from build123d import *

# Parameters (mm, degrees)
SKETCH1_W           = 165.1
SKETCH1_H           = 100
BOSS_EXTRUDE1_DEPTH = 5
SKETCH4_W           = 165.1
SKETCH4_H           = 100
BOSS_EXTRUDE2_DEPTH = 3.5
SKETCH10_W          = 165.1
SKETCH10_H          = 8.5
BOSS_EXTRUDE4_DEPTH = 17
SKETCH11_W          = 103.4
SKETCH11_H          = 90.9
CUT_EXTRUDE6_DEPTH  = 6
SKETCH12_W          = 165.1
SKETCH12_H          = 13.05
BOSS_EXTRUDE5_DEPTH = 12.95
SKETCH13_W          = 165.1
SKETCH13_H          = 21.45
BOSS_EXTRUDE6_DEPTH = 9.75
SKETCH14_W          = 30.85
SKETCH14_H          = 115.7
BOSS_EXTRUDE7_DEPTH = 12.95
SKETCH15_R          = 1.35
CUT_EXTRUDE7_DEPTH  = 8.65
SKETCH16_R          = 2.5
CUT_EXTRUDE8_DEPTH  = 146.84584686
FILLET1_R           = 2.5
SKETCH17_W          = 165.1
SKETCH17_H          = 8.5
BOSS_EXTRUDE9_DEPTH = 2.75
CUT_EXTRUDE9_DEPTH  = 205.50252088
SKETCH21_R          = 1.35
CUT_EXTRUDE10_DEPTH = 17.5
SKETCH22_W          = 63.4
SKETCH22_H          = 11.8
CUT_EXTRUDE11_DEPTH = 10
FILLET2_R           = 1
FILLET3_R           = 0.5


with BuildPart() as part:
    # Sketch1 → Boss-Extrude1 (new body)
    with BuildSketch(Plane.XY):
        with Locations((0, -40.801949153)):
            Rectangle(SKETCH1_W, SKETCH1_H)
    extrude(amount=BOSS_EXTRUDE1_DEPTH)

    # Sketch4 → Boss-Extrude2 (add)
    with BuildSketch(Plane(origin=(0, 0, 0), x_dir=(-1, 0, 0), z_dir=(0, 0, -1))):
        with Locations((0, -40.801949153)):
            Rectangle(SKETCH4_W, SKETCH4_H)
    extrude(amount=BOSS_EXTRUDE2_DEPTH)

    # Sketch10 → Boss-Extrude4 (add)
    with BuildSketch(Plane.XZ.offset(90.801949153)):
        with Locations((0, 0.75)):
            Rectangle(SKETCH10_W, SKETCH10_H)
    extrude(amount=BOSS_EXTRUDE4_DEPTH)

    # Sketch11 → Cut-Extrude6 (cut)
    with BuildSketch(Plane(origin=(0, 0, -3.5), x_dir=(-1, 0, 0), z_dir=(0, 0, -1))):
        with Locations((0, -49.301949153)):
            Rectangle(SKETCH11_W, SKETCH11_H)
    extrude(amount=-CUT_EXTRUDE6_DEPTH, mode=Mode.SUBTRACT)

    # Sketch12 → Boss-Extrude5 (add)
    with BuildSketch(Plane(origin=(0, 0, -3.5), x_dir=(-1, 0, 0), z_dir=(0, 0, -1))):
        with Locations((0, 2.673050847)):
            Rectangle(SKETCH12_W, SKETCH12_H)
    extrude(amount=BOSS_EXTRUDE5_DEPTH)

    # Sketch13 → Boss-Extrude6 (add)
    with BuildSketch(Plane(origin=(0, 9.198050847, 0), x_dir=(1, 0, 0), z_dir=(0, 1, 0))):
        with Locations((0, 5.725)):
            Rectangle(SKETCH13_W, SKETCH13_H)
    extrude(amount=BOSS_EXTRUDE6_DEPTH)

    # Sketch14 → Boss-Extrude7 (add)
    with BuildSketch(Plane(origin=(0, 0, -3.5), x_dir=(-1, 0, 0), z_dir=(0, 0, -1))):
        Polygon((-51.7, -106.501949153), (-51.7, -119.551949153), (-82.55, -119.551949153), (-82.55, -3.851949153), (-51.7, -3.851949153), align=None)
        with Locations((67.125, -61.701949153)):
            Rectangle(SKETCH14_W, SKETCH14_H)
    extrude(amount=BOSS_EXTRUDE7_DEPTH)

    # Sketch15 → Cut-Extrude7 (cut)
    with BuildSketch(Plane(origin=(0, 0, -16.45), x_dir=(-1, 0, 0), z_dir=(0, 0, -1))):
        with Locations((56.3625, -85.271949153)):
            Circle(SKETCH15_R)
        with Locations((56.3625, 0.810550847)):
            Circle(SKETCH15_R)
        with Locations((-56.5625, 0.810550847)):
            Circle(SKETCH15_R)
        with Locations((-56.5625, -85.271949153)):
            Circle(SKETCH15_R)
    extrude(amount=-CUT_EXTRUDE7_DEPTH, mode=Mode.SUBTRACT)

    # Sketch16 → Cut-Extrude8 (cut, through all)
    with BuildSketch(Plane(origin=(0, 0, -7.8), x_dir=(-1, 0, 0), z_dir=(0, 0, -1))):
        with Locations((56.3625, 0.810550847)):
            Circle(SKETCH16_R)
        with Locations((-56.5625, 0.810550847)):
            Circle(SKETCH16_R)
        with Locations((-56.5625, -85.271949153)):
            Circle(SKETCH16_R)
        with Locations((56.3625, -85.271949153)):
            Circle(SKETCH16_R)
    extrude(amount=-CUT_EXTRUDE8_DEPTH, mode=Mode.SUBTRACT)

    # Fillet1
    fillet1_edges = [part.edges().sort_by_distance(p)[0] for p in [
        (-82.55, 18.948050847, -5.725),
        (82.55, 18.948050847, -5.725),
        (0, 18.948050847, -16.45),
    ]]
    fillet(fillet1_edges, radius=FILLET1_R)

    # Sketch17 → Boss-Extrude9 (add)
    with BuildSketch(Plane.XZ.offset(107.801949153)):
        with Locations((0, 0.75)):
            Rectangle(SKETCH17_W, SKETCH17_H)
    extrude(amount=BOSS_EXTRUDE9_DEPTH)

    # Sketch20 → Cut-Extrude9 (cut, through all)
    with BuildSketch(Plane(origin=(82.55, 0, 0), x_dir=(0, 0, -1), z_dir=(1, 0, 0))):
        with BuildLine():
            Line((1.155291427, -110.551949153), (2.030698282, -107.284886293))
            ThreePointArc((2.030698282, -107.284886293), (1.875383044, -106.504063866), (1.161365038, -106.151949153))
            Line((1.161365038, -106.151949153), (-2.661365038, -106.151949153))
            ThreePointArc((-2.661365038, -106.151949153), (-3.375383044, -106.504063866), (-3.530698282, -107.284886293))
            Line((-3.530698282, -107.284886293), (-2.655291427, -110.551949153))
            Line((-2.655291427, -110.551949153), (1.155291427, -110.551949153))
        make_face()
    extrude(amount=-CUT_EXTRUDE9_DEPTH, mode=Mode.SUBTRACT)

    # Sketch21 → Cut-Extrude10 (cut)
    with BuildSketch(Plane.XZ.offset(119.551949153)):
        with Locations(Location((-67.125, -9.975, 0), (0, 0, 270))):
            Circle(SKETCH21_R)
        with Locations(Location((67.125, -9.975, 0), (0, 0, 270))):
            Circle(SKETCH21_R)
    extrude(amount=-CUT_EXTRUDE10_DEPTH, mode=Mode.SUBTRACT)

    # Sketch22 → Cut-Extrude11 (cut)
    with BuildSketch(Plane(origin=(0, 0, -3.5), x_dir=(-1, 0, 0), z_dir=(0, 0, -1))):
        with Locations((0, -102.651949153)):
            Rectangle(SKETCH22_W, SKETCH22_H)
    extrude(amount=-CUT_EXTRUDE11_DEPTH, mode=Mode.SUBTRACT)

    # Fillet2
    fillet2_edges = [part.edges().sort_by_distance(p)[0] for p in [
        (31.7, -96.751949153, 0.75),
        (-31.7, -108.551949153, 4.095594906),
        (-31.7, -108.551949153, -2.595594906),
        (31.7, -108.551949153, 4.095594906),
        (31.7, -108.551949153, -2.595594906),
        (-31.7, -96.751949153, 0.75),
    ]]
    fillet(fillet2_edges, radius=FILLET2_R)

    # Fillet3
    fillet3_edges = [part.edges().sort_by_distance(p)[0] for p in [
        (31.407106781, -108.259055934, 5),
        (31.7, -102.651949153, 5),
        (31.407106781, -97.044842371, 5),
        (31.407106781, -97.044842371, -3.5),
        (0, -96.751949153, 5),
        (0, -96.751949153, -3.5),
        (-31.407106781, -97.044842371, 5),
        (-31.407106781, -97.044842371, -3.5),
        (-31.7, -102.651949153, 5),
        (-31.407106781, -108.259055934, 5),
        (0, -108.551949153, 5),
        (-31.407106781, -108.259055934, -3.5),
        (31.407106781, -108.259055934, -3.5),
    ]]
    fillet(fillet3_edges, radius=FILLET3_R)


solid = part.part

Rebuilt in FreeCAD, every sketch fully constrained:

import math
import FreeCAD as App
import Part
import Sketcher
Q = App.Units.Quantity


def edges_at(feature, points):
    """Names of the edges that pass closest to the given points."""
    edges = feature.Shape.Edges
    near = lambda p: min(range(len(edges)), key=lambda i: edges[i].distToShape(Part.Vertex(*p))[0])
    return sorted({f"Edge{near(p) + 1}" for p in points})

doc = App.newDocument("Part")
body = doc.addObject("PartDesign::Body", "Body")

sketch1 = body.newObject("Sketcher::SketchObject", "Sketch")
sketch1.AttachmentSupport = (doc.getObject("XY_Plane"), [""])
sketch1.MapMode = "FlatFace"
sketch1.addGeometry(Part.LineSegment(App.Vector(-83, 9, 0), App.Vector(-83, -91, 0)), False)
sketch1.addGeometry(Part.LineSegment(App.Vector(-83, -91, 0), App.Vector(83, -91, 0)), False)
sketch1.addGeometry(Part.LineSegment(App.Vector(83, -91, 0), App.Vector(83, 9, 0)), False)
sketch1.addGeometry(Part.LineSegment(App.Vector(83, 9, 0), App.Vector(-83, 9, 0)), False)
sketch1.addConstraint(Sketcher.Constraint("Coincident", 0, 2, 1, 1))
sketch1.addConstraint(Sketcher.Constraint("Coincident", 1, 2, 2, 1))
sketch1.addConstraint(Sketcher.Constraint("Coincident", 2, 2, 3, 1))
sketch1.addConstraint(Sketcher.Constraint("Coincident", 3, 2, 0, 1))
sketch1.addConstraint(Sketcher.Constraint("Vertical", 0))
sketch1.addConstraint(Sketcher.Constraint("Horizontal", 1))
sketch1.addConstraint(Sketcher.Constraint("Vertical", 2))
sketch1.addConstraint(Sketcher.Constraint("Horizontal", 3))
sketch1.addConstraint(Sketcher.Constraint("DistanceY", 0, 2, 0, 1, 100.0))
sketch1.addConstraint(Sketcher.Constraint("DistanceX", 1, 1, 1, 2, 165.1))
sketch1.addConstraint(Sketcher.Constraint("DistanceX", 0, 2, -1, 1, 82.55))
sketch1.addConstraint(Sketcher.Constraint("DistanceY", 0, 2, -1, 1, 90.801949))
pad1 = body.newObject("PartDesign::Pad", "Pad")
pad1.Profile = sketch1
pad1.Length = 5

sketch2 = body.newObject("Sketcher::SketchObject", "Sketch001")
sketch2.AttachmentSupport = (doc.getObject("XY_Plane"), [""])
sketch2.MapMode = "FlatFace"
sketch2.addGeometry(Part.LineSegment(App.Vector(83, 9, 0), App.Vector(83, -91, 0)), False)
sketch2.addGeometry(Part.LineSegment(App.Vector(83, -91, 0), App.Vector(-83, -91, 0)), False)
sketch2.addGeometry(Part.LineSegment(App.Vector(-83, -91, 0), App.Vector(-83, 9, 0)), False)
sketch2.addGeometry(Part.LineSegment(App.Vector(-83, 9, 0), App.Vector(83, 9, 0)), False)
sketch2.addConstraint(Sketcher.Constraint("Coincident", 0, 2, 1, 1))
sketch2.addConstraint(Sketcher.Constraint("Coincident", 1, 2, 2, 1))
sketch2.addConstraint(Sketcher.Constraint("Coincident", 2, 2, 3, 1))
sketch2.addConstraint(Sketcher.Constraint("Coincident", 3, 2, 0, 1))
sketch2.addConstraint(Sketcher.Constraint("Vertical", 0))
sketch2.addConstraint(Sketcher.Constraint("Horizontal", 1))
sketch2.addConstraint(Sketcher.Constraint("Vertical", 2))
sketch2.addConstraint(Sketcher.Constraint("Horizontal", 3))
sketch2.addConstraint(Sketcher.Constraint("DistanceY", 0, 2, 0, 1, 100.0))
sketch2.addConstraint(Sketcher.Constraint("DistanceX", 1, 2, 1, 1, 165.1))
sketch2.addConstraint(Sketcher.Constraint("DistanceX", -1, 1, 0, 2, 82.55))
sketch2.addConstraint(Sketcher.Constraint("DistanceY", 0, 2, -1, 1, 90.801949))
pad2 = body.newObject("PartDesign::Pad", "Pad001")
pad2.Profile = sketch2
pad2.Length = 3.5
pad2.Reversed = True

sketch3 = body.newObject("Sketcher::SketchObject", "Sketch002")
sketch3.AttachmentSupport = (doc.getObject("XZ_Plane"), [""])
sketch3.MapMode = "FlatFace"
sketch3.AttachmentOffset = App.Placement(App.Vector(0, 0, 90.801949), App.Rotation())
sketch3.addGeometry(Part.LineSegment(App.Vector(-83, 5, 0), App.Vector(-83, -4, 0)), False)
sketch3.addGeometry(Part.LineSegment(App.Vector(-83, -4, 0), App.Vector(83, -4, 0)), False)
sketch3.addGeometry(Part.LineSegment(App.Vector(83, -4, 0), App.Vector(83, 5, 0)), False)
sketch3.addGeometry(Part.LineSegment(App.Vector(83, 5, 0), App.Vector(-83, 5, 0)), False)
sketch3.addConstraint(Sketcher.Constraint("Coincident", 0, 2, 1, 1))
sketch3.addConstraint(Sketcher.Constraint("Coincident", 1, 2, 2, 1))
sketch3.addConstraint(Sketcher.Constraint("Coincident", 2, 2, 3, 1))
sketch3.addConstraint(Sketcher.Constraint("Coincident", 3, 2, 0, 1))
sketch3.addConstraint(Sketcher.Constraint("Vertical", 0))
sketch3.addConstraint(Sketcher.Constraint("Horizontal", 1))
sketch3.addConstraint(Sketcher.Constraint("Vertical", 2))
sketch3.addConstraint(Sketcher.Constraint("Horizontal", 3))
sketch3.addConstraint(Sketcher.Constraint("DistanceX", 1, 1, 1, 2, 165.1))
sketch3.addConstraint(Sketcher.Constraint("DistanceY", 0, 2, 0, 1, 8.5))
sketch3.addConstraint(Sketcher.Constraint("DistanceY", -1, 1, 2, 2, 5.0))
sketch3.addConstraint(Sketcher.Constraint("DistanceX", 0, 2, -1, 1, 82.55))
pad3 = body.newObject("PartDesign::Pad", "Pad002")
pad3.Profile = sketch3
pad3.Length = 17

sketch4 = body.newObject("Sketcher::SketchObject", "Sketch003")
sketch4.AttachmentSupport = (doc.getObject("XY_Plane"), [""])
sketch4.MapMode = "FlatFace"
sketch4.AttachmentOffset = App.Placement(App.Vector(0, 0, -3.5), App.Rotation())
sketch4.addGeometry(Part.LineSegment(App.Vector(52, -4, 0), App.Vector(52, -95, 0)), False)
sketch4.addGeometry(Part.LineSegment(App.Vector(52, -95, 0), App.Vector(-52, -95, 0)), False)
sketch4.addGeometry(Part.LineSegment(App.Vector(-52, -95, 0), App.Vector(-52, -4, 0)), False)
sketch4.addGeometry(Part.LineSegment(App.Vector(-52, -4, 0), App.Vector(52, -4, 0)), False)
sketch4.addConstraint(Sketcher.Constraint("Coincident", 0, 2, 1, 1))
sketch4.addConstraint(Sketcher.Constraint("Coincident", 1, 2, 2, 1))
sketch4.addConstraint(Sketcher.Constraint("Coincident", 2, 2, 3, 1))
sketch4.addConstraint(Sketcher.Constraint("Coincident", 3, 2, 0, 1))
sketch4.addConstraint(Sketcher.Constraint("Vertical", 0))
sketch4.addConstraint(Sketcher.Constraint("Horizontal", 1))
sketch4.addConstraint(Sketcher.Constraint("Vertical", 2))
sketch4.addConstraint(Sketcher.Constraint("Horizontal", 3))
sketch4.addConstraint(Sketcher.Constraint("DistanceX", 1, 2, 1, 1, 103.4))
sketch4.addConstraint(Sketcher.Constraint("DistanceY", 0, 2, 0, 1, 90.9))
sketch4.addConstraint(Sketcher.Constraint("DistanceX", -1, 1, 0, 2, 51.7))
sketch4.addConstraint(Sketcher.Constraint("DistanceY", 0, 2, -1, 1, 94.751949))
pocket1 = body.newObject("PartDesign::Pocket", "Pocket")
pocket1.Profile = sketch4
pocket1.Length = 6
pocket1.Reversed = True

sketch5 = body.newObject("Sketcher::SketchObject", "Sketch004")
sketch5.AttachmentSupport = (doc.getObject("XY_Plane"), [""])
sketch5.MapMode = "FlatFace"
sketch5.AttachmentOffset = App.Placement(App.Vector(0, 0, -3.5), App.Rotation())
sketch5.addGeometry(Part.LineSegment(App.Vector(83, 9, 0), App.Vector(83, -4, 0)), False)
sketch5.addGeometry(Part.LineSegment(App.Vector(83, -4, 0), App.Vector(-83, -4, 0)), False)
sketch5.addGeometry(Part.LineSegment(App.Vector(-83, -4, 0), App.Vector(-83, 9, 0)), False)
sketch5.addGeometry(Part.LineSegment(App.Vector(-83, 9, 0), App.Vector(83, 9, 0)), False)
sketch5.addConstraint(Sketcher.Constraint("Coincident", 0, 2, 1, 1))
sketch5.addConstraint(Sketcher.Constraint("Coincident", 1, 2, 2, 1))
sketch5.addConstraint(Sketcher.Constraint("Coincident", 2, 2, 3, 1))
sketch5.addConstraint(Sketcher.Constraint("Coincident", 3, 2, 0, 1))
sketch5.addConstraint(Sketcher.Constraint("Vertical", 0))
sketch5.addConstraint(Sketcher.Constraint("Horizontal", 1))
sketch5.addConstraint(Sketcher.Constraint("Vertical", 2))
sketch5.addConstraint(Sketcher.Constraint("Horizontal", 3))
sketch5.addConstraint(Sketcher.Constraint("DistanceX", 1, 2, 1, 1, 165.1))
sketch5.addConstraint(Sketcher.Constraint("DistanceY", 0, 2, 0, 1, 13.05))
sketch5.addConstraint(Sketcher.Constraint("DistanceX", -1, 1, 0, 2, 82.55))
sketch5.addConstraint(Sketcher.Constraint("DistanceY", 0, 2, -1, 1, 3.851949))
pad4 = body.newObject("PartDesign::Pad", "Pad003")
pad4.Profile = sketch5
pad4.Length = 12.95
pad4.Reversed = True

sketch6 = body.newObject("Sketcher::SketchObject", "Sketch005")
sketch6.AttachmentSupport = (doc.getObject("XZ_Plane"), [""])
sketch6.MapMode = "FlatFace"
sketch6.AttachmentOffset = App.Placement(App.Vector(0, 0, -9.198051), App.Rotation())
sketch6.addGeometry(Part.LineSegment(App.Vector(-83, -16, 0), App.Vector(-83, 5, 0)), False)
sketch6.addGeometry(Part.LineSegment(App.Vector(-83, 5, 0), App.Vector(83, 5, 0)), False)
sketch6.addGeometry(Part.LineSegment(App.Vector(83, 5, 0), App.Vector(83, -16, 0)), False)
sketch6.addGeometry(Part.LineSegment(App.Vector(83, -16, 0), App.Vector(-83, -16, 0)), False)
sketch6.addConstraint(Sketcher.Constraint("Coincident", 0, 2, 1, 1))
sketch6.addConstraint(Sketcher.Constraint("Coincident", 1, 2, 2, 1))
sketch6.addConstraint(Sketcher.Constraint("Coincident", 2, 2, 3, 1))
sketch6.addConstraint(Sketcher.Constraint("Coincident", 3, 2, 0, 1))
sketch6.addConstraint(Sketcher.Constraint("Vertical", 0))
sketch6.addConstraint(Sketcher.Constraint("Horizontal", 1))
sketch6.addConstraint(Sketcher.Constraint("Vertical", 2))
sketch6.addConstraint(Sketcher.Constraint("Horizontal", 3))
sketch6.addConstraint(Sketcher.Constraint("DistanceX", 1, 1, 1, 2, 165.1))
sketch6.addConstraint(Sketcher.Constraint("DistanceY", -1, 1, 0, 2, 5.0))
sketch6.addConstraint(Sketcher.Constraint("DistanceY", 0, 1, 0, 2, 21.45))
sketch6.addConstraint(Sketcher.Constraint("DistanceX", 0, 2, -1, 1, 82.55))
pad5 = body.newObject("PartDesign::Pad", "Pad004")
pad5.Profile = sketch6
pad5.Length = 9.75
pad5.Reversed = True

sketch7 = body.newObject("Sketcher::SketchObject", "Sketch006")
sketch7.AttachmentSupport = (doc.getObject("XY_Plane"), [""])
sketch7.MapMode = "FlatFace"
sketch7.AttachmentOffset = App.Placement(App.Vector(0, 0, -3.5), App.Rotation())
sketch7.addGeometry(Part.LineSegment(App.Vector(52, -120, 0), App.Vector(52, -4, 0)), False)
sketch7.addGeometry(Part.LineSegment(App.Vector(52, -4, 0), App.Vector(83, -4, 0)), False)
sketch7.addGeometry(Part.LineSegment(App.Vector(83, -4, 0), App.Vector(83, -120, 0)), False)
sketch7.addGeometry(Part.LineSegment(App.Vector(83, -120, 0), App.Vector(52, -120, 0)), False)
sketch7.addGeometry(Part.LineSegment(App.Vector(-52, -4, 0), App.Vector(-52, -120, 0)), False)
sketch7.addGeometry(Part.LineSegment(App.Vector(-52, -120, 0), App.Vector(-83, -120, 0)), False)
sketch7.addGeometry(Part.LineSegment(App.Vector(-83, -120, 0), App.Vector(-83, -4, 0)), False)
sketch7.addGeometry(Part.LineSegment(App.Vector(-83, -4, 0), App.Vector(-52, -4, 0)), False)
sketch7.addConstraint(Sketcher.Constraint("Coincident", 0, 2, 1, 1))
sketch7.addConstraint(Sketcher.Constraint("Coincident", 1, 2, 2, 1))
sketch7.addConstraint(Sketcher.Constraint("Coincident", 2, 2, 3, 1))
sketch7.addConstraint(Sketcher.Constraint("Coincident", 3, 2, 0, 1))
sketch7.addConstraint(Sketcher.Constraint("Coincident", 4, 2, 5, 1))
sketch7.addConstraint(Sketcher.Constraint("Coincident", 5, 2, 6, 1))
sketch7.addConstraint(Sketcher.Constraint("Coincident", 6, 2, 7, 1))
sketch7.addConstraint(Sketcher.Constraint("Coincident", 7, 2, 4, 1))
sketch7.addConstraint(Sketcher.Constraint("Vertical", 0))
sketch7.addConstraint(Sketcher.Constraint("Horizontal", 1))
sketch7.addConstraint(Sketcher.Constraint("Vertical", 2))
sketch7.addConstraint(Sketcher.Constraint("Horizontal", 3))
sketch7.addConstraint(Sketcher.Constraint("Vertical", 4))
sketch7.addConstraint(Sketcher.Constraint("Horizontal", 5))
sketch7.addConstraint(Sketcher.Constraint("Vertical", 6))
sketch7.addConstraint(Sketcher.Constraint("Horizontal", 7))
sketch7.addConstraint(Sketcher.Constraint("Symmetric", 3, 2, 4, 2, -2))
sketch7.addConstraint(Sketcher.Constraint("Symmetric", 1, 2, 6, 2, -2))
sketch7.addConstraint(Sketcher.Constraint("DistanceY", 0, 1, 0, 2, 115.7))
sketch7.addConstraint(Sketcher.Constraint("DistanceX", 1, 1, 1, 2, 30.85))
sketch7.addConstraint(Sketcher.Constraint("DistanceX", -1, 1, 0, 2, 51.7))
sketch7.addConstraint(Sketcher.Constraint("DistanceY", 0, 2, -1, 1, 3.851949))
pad6 = body.newObject("PartDesign::Pad", "Pad005")
pad6.Profile = sketch7
pad6.Length = 12.95
pad6.Reversed = True

sketch8 = body.newObject("Sketcher::SketchObject", "Sketch007")
sketch8.AttachmentSupport = (doc.getObject("XY_Plane"), [""])
sketch8.MapMode = "FlatFace"
sketch8.AttachmentOffset = App.Placement(App.Vector(0, 0, -16.45), App.Rotation())
sketch8.addGeometry(Part.Circle(App.Vector(-56.4, -85.3, 0), App.Vector(0, 0, 1), 1.4), False)
sketch8.addGeometry(Part.Circle(App.Vector(-56.4, 0.8, 0), App.Vector(0, 0, 1), 1.4), False)
sketch8.addGeometry(Part.Circle(App.Vector(56.6, 0.8, 0), App.Vector(0, 0, 1), 1.4), False)
sketch8.addGeometry(Part.Circle(App.Vector(56.6, -85.3, 0), App.Vector(0, 0, 1), 1.4), False)
sketch8.addConstraint(Sketcher.Constraint("Equal", 0, 1))
sketch8.addConstraint(Sketcher.Constraint("Equal", 1, 2))
sketch8.addConstraint(Sketcher.Constraint("Equal", 2, 3))
sketch8.addConstraint(Sketcher.Constraint("Horizontal", 1, 3, 2, 3))
sketch8.addConstraint(Sketcher.Constraint("Horizontal", 0, 3, 3, 3))
sketch8.addConstraint(Sketcher.Constraint("Vertical", 0, 3, 1, 3))
sketch8.addConstraint(Sketcher.Constraint("Vertical", 2, 3, 3, 3))
sketch8.addConstraint(Sketcher.Constraint("Diameter", 0, 2.7))
sketch8.addConstraint(Sketcher.Constraint("DistanceX", 1, 3, 2, 3, 112.925))
sketch8.addConstraint(Sketcher.Constraint("DistanceX", 0, 3, -1, 1, 56.3625))
sketch8.addConstraint(Sketcher.Constraint("DistanceY", 0, 3, 1, 3, 86.0825))
sketch8.addConstraint(Sketcher.Constraint("DistanceY", 0, 3, -1, 1, 85.271949))
pocket2 = body.newObject("PartDesign::Pocket", "Pocket001")
pocket2.Profile = sketch8
pocket2.Length = 8.65
pocket2.Reversed = True

sketch9 = body.newObject("Sketcher::SketchObject", "Sketch008")
sketch9.AttachmentSupport = (doc.getObject("XY_Plane"), [""])
sketch9.MapMode = "FlatFace"
sketch9.AttachmentOffset = App.Placement(App.Vector(0, 0, -7.8), App.Rotation())
sketch9.addGeometry(Part.Circle(App.Vector(-56.4, 0.8, 0), App.Vector(0, 0, 1), 2.5), False)
sketch9.addGeometry(Part.Circle(App.Vector(56.6, 0.8, 0), App.Vector(0, 0, 1), 2.5), False)
sketch9.addGeometry(Part.Circle(App.Vector(56.6, -85.3, 0), App.Vector(0, 0, 1), 2.5), False)
sketch9.addGeometry(Part.Circle(App.Vector(-56.4, -85.3, 0), App.Vector(0, 0, 1), 2.5), False)
sketch9.addConstraint(Sketcher.Constraint("Equal", 0, 1))
sketch9.addConstraint(Sketcher.Constraint("Equal", 1, 2))
sketch9.addConstraint(Sketcher.Constraint("Equal", 2, 3))
sketch9.addConstraint(Sketcher.Constraint("Horizontal", 0, 3, 1, 3))
sketch9.addConstraint(Sketcher.Constraint("Horizontal", 2, 3, 3, 3))
sketch9.addConstraint(Sketcher.Constraint("Vertical", 1, 3, 2, 3))
sketch9.addConstraint(Sketcher.Constraint("Vertical", 0, 3, 3, 3))
sketch9.addConstraint(Sketcher.Constraint("Diameter", 0, 5.0))
sketch9.addConstraint(Sketcher.Constraint("DistanceX", 0, 3, 1, 3, 112.925))
sketch9.addConstraint(Sketcher.Constraint("DistanceX", 0, 3, -1, 1, 56.3625))
sketch9.addConstraint(Sketcher.Constraint("DistanceY", 2, 3, 1, 3, 86.0825))
sketch9.addConstraint(Sketcher.Constraint("DistanceY", -1, 1, 0, 3, 0.810551))
pocket3 = body.newObject("PartDesign::Pocket", "Pocket002")
pocket3.Profile = sketch9
pocket3.Type = "ThroughAll"
pocket3.Reversed = True
doc.recompute()

fillet = body.newObject("PartDesign::Fillet", "Fillet")
fillet.Base = (pocket3, edges_at(pocket3, [(-82.55, 18.948, -5.725), (82.55, 18.948, -5.725), (0, 18.948, -16.45)]))
fillet.Radius = 2.5

sketch10 = body.newObject("Sketcher::SketchObject", "Sketch009")
sketch10.AttachmentSupport = (doc.getObject("XZ_Plane"), [""])
sketch10.MapMode = "FlatFace"
sketch10.AttachmentOffset = App.Placement(App.Vector(0, 0, 107.801949), App.Rotation())
sketch10.addGeometry(Part.LineSegment(App.Vector(-83, 5, 0), App.Vector(-83, -4, 0)), False)
sketch10.addGeometry(Part.LineSegment(App.Vector(-83, -4, 0), App.Vector(83, -4, 0)), False)
sketch10.addGeometry(Part.LineSegment(App.Vector(83, -4, 0), App.Vector(83, 5, 0)), False)
sketch10.addGeometry(Part.LineSegment(App.Vector(83, 5, 0), App.Vector(-83, 5, 0)), False)
sketch10.addConstraint(Sketcher.Constraint("Coincident", 0, 2, 1, 1))
sketch10.addConstraint(Sketcher.Constraint("Coincident", 1, 2, 2, 1))
sketch10.addConstraint(Sketcher.Constraint("Coincident", 2, 2, 3, 1))
sketch10.addConstraint(Sketcher.Constraint("Coincident", 3, 2, 0, 1))
sketch10.addConstraint(Sketcher.Constraint("Vertical", 0))
sketch10.addConstraint(Sketcher.Constraint("Horizontal", 1))
sketch10.addConstraint(Sketcher.Constraint("Vertical", 2))
sketch10.addConstraint(Sketcher.Constraint("Horizontal", 3))
sketch10.addConstraint(Sketcher.Constraint("DistanceX", 1, 1, 1, 2, 165.1))
sketch10.addConstraint(Sketcher.Constraint("DistanceY", 0, 2, 0, 1, 8.5))
sketch10.addConstraint(Sketcher.Constraint("DistanceY", -1, 1, 2, 2, 5.0))
sketch10.addConstraint(Sketcher.Constraint("DistanceX", 0, 2, -1, 1, 82.55))
pad7 = body.newObject("PartDesign::Pad", "Pad006")
pad7.Profile = sketch10
pad7.Length = 2.75

sketch11 = body.newObject("Sketcher::SketchObject", "Sketch010")
sketch11.AttachmentSupport = (doc.getObject("YZ_Plane"), [""])
sketch11.MapMode = "FlatFace"
sketch11.AttachmentOffset = App.Placement(App.Vector(0, 0, 82.55), App.Rotation())
sketch11.addGeometry(Part.LineSegment(App.Vector(-110.6, -1.2, 0), App.Vector(-107.3, -2, 0)), False)
sketch11.addGeometry(Part.ArcOfCircle(Part.Circle(App.Vector(-107.1, -1.2, 0), App.Vector(0, 0, 1), 0.9), math.radians(-105), math.radians(0)), False)
sketch11.addGeometry(Part.LineSegment(App.Vector(-106.2, -1.2, 0), App.Vector(-106.2, 2.7, 0)), False)
sketch11.addGeometry(Part.ArcOfCircle(Part.Circle(App.Vector(-107.1, 2.7, 0), App.Vector(0, 0, 1), 0.9), math.radians(0), math.radians(105)), False)
sketch11.addGeometry(Part.LineSegment(App.Vector(-107.3, 3.5, 0), App.Vector(-110.6, 2.7, 0)), False)
sketch11.addGeometry(Part.LineSegment(App.Vector(-110.6, 2.7, 0), App.Vector(-110.6, -1.2, 0)), False)
sketch11.addConstraint(Sketcher.Constraint("Tangent", 0, 2, 1, 1))
sketch11.addConstraint(Sketcher.Constraint("Tangent", 1, 2, 2, 1))
sketch11.addConstraint(Sketcher.Constraint("Tangent", 2, 2, 3, 1))
sketch11.addConstraint(Sketcher.Constraint("Tangent", 3, 2, 4, 1))
sketch11.addConstraint(Sketcher.Constraint("Coincident", 4, 2, 5, 1))
sketch11.addConstraint(Sketcher.Constraint("Coincident", 5, 2, 0, 1))
sketch11.addConstraint(Sketcher.Constraint("Vertical", 2))
sketch11.addConstraint(Sketcher.Constraint("Vertical", 5))
sketch11.addConstraint(Sketcher.Constraint("Equal", 1, 3))
sketch11.addConstraint(Sketcher.Constraint("Vertical", 0, 2, 3, 2))
sketch11.addConstraint(Sketcher.Constraint("Radius", 1, 0.9))
sketch11.addConstraint(Sketcher.Constraint("Angle", 0, Q("-15 deg")))
sketch11.addConstraint(Sketcher.Constraint("DistanceX", 4, 2, 3, 3, 3.5))
sketch11.addConstraint(Sketcher.Constraint("DistanceY", 2, 1, 2, 2, 3.82273))
sketch11.addConstraint(Sketcher.Constraint("DistanceY", 0, 2, -1, 1, 2.030698))
sketch11.addConstraint(Sketcher.Constraint("DistanceX", 1, 3, -1, 1, 107.051949))
pocket4 = body.newObject("PartDesign::Pocket", "Pocket003")
pocket4.Profile = sketch11
pocket4.Type = "ThroughAll"

sketch12 = body.newObject("Sketcher::SketchObject", "Sketch011")
sketch12.AttachmentSupport = (doc.getObject("XZ_Plane"), [""])
sketch12.MapMode = "FlatFace"
sketch12.AttachmentOffset = App.Placement(App.Vector(0, 0, 119.551949), App.Rotation())
sketch12.addGeometry(Part.Circle(App.Vector(-67.1, -10, 0), App.Vector(0, 0, 1), 1.4), False)
sketch12.addGeometry(Part.Circle(App.Vector(67.1, -10, 0), App.Vector(0, 0, 1), 1.4), False)
sketch12.addConstraint(Sketcher.Constraint("Equal", 0, 1))
sketch12.addConstraint(Sketcher.Constraint("Symmetric", 0, 3, 1, 3, -2))
sketch12.addConstraint(Sketcher.Constraint("Diameter", 0, 2.7))
sketch12.addConstraint(Sketcher.Constraint("DistanceX", 0, 3, 1, 3, 134.25))
sketch12.addConstraint(Sketcher.Constraint("DistanceY", 0, 3, -1, 1, 9.975))
pocket5 = body.newObject("PartDesign::Pocket", "Pocket004")
pocket5.Profile = sketch12
pocket5.Length = 17.5

sketch13 = body.newObject("Sketcher::SketchObject", "Sketch012")
sketch13.AttachmentSupport = (doc.getObject("XY_Plane"), [""])
sketch13.MapMode = "FlatFace"
sketch13.AttachmentOffset = App.Placement(App.Vector(0, 0, -3.5), App.Rotation())
sketch13.addGeometry(Part.LineSegment(App.Vector(32, -97, 0), App.Vector(32, -109, 0)), False)
sketch13.addGeometry(Part.LineSegment(App.Vector(32, -109, 0), App.Vector(-32, -109, 0)), False)
sketch13.addGeometry(Part.LineSegment(App.Vector(-32, -109, 0), App.Vector(-32, -97, 0)), False)
sketch13.addGeometry(Part.LineSegment(App.Vector(-32, -97, 0), App.Vector(32, -97, 0)), False)
sketch13.addConstraint(Sketcher.Constraint("Coincident", 0, 2, 1, 1))
sketch13.addConstraint(Sketcher.Constraint("Coincident", 1, 2, 2, 1))
sketch13.addConstraint(Sketcher.Constraint("Coincident", 2, 2, 3, 1))
sketch13.addConstraint(Sketcher.Constraint("Coincident", 3, 2, 0, 1))
sketch13.addConstraint(Sketcher.Constraint("Vertical", 0))
sketch13.addConstraint(Sketcher.Constraint("Horizontal", 1))
sketch13.addConstraint(Sketcher.Constraint("Vertical", 2))
sketch13.addConstraint(Sketcher.Constraint("Horizontal", 3))
sketch13.addConstraint(Sketcher.Constraint("DistanceX", 1, 2, 1, 1, 63.4))
sketch13.addConstraint(Sketcher.Constraint("DistanceY", 0, 2, 0, 1, 11.8))
sketch13.addConstraint(Sketcher.Constraint("DistanceX", -1, 1, 0, 2, 31.7))
sketch13.addConstraint(Sketcher.Constraint("DistanceY", 0, 2, -1, 1, 108.551949))
pocket6 = body.newObject("PartDesign::Pocket", "Pocket005")
pocket6.Profile = sketch13
pocket6.Length = 10
pocket6.Reversed = True
doc.recompute()

fillet2 = body.newObject("PartDesign::Fillet", "Fillet001")
fillet2.Base = (pocket6, edges_at(pocket6, [
    (31.7, -96.752, 0.75),
    (-31.7, -108.552, 4.096),
    (-31.7, -108.552, -2.596),
    (31.7, -108.552, 4.096),
    (31.7, -108.552, -2.596),
    (-31.7, -96.752, 0.75),
]))
fillet2.Radius = 1
doc.recompute()

fillet3 = body.newObject("PartDesign::Fillet", "Fillet002")
fillet3.Base = (fillet2, edges_at(fillet2, [
    (31.407, -108.259, 5),
    (31.7, -102.652, 5),
    (31.407, -97.045, 5),
    (31.407, -97.045, -3.5),
    (0, -96.752, 5),
    (0, -96.752, -3.5),
    (-31.407, -97.045, 5),
    (-31.407, -97.045, -3.5),
    (-31.7, -102.652, 5),
    (-31.407, -108.259, 5),
    (0, -108.552, 5),
    (-31.407, -108.259, -3.5),
    (31.407, -108.259, -3.5),
]))
fillet3.Radius = 0.5

doc.recompute()
